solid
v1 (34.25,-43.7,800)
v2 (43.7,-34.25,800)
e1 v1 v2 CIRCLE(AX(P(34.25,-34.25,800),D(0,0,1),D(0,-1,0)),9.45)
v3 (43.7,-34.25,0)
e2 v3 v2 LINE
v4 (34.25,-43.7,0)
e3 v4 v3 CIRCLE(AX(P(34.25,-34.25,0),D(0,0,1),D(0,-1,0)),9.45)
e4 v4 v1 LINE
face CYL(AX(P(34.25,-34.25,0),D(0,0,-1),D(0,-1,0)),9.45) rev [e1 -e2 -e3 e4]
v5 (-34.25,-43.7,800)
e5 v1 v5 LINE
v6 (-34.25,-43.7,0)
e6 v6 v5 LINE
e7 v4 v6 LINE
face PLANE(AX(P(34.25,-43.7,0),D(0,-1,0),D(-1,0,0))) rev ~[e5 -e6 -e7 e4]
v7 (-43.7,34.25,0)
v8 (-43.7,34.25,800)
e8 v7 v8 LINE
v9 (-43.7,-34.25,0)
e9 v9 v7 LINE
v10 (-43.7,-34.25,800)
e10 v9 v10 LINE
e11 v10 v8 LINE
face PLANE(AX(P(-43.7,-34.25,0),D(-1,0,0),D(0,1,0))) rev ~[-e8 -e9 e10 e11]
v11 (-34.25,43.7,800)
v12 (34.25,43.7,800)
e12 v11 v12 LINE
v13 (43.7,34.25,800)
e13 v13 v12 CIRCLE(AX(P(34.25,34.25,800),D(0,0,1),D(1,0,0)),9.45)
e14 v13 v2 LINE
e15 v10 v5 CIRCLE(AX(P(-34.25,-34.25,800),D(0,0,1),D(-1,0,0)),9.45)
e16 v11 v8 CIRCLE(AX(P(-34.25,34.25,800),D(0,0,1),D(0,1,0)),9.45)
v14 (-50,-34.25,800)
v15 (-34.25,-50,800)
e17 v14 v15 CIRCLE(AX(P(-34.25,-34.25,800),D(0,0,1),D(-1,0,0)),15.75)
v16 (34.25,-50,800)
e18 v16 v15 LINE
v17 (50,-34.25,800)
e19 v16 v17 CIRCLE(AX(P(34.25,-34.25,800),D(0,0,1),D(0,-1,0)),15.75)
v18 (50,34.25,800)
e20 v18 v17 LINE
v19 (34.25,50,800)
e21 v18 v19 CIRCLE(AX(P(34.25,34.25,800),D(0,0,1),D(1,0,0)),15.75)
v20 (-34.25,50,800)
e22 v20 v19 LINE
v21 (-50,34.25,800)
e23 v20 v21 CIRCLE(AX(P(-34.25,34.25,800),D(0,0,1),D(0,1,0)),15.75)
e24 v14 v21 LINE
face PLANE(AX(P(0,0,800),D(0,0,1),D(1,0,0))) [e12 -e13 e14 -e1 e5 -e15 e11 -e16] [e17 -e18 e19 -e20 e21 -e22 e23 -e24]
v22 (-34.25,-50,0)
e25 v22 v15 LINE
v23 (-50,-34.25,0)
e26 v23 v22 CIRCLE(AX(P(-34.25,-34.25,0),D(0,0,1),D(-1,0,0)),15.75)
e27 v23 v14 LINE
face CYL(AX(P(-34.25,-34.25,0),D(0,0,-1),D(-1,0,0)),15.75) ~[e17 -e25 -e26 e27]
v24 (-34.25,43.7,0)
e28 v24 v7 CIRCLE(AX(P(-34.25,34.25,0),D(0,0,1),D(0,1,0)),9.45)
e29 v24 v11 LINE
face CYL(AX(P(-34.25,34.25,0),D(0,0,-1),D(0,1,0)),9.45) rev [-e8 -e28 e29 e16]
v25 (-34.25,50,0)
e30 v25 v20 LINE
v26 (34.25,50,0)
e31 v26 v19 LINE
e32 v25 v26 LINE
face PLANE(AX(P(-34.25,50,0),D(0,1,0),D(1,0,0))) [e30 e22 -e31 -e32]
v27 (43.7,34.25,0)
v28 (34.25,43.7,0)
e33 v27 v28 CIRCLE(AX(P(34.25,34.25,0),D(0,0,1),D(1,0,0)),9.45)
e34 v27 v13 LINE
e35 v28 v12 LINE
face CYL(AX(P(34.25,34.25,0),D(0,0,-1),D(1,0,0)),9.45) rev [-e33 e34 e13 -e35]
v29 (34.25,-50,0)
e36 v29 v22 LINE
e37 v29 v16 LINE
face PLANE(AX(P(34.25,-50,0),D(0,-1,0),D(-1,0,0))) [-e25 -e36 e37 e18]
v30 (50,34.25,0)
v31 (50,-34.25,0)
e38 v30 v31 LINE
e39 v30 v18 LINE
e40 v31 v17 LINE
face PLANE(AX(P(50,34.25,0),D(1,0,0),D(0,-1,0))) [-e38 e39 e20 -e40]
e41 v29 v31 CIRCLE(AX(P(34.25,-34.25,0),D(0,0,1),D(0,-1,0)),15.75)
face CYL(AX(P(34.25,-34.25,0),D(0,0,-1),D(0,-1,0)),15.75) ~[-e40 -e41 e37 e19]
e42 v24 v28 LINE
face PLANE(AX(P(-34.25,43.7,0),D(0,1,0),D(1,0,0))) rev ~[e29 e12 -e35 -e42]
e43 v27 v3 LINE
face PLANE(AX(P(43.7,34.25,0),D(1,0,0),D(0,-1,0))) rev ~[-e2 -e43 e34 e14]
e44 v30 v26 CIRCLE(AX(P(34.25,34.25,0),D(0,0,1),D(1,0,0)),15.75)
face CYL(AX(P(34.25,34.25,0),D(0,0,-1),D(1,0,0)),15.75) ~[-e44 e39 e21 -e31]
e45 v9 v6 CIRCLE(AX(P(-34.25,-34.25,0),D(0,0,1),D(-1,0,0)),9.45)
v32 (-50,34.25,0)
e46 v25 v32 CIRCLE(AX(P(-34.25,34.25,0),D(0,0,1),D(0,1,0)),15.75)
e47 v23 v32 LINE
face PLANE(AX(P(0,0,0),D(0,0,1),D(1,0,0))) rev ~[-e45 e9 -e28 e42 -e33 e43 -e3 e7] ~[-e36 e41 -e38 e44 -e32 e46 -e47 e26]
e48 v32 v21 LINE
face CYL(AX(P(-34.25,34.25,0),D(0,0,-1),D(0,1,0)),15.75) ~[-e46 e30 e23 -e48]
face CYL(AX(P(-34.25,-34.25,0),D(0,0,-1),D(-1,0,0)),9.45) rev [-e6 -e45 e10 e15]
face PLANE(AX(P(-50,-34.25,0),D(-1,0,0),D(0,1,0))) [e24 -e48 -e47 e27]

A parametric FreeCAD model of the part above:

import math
import FreeCAD as App
import Part
import Sketcher

V = App.Vector
Q = App.Units.Quantity

doc = App.newDocument("Part")
params = doc.addObject("Spreadsheet::Sheet", "Params")
for row, (alias, value) in enumerate([
    ("sketch1_radius", "15.75 mm"),
    ("pad1_length", "800 mm"),
], start=1):
    params.set(f"A{row}", alias)
    params.set(f"B{row}", "=" + value)
    params.setAlias(f"B{row}", alias)

body = doc.addObject("PartDesign::Body", "Body")

# Sketch on XY plane
sketch1 = body.newObject("Sketcher::SketchObject", "Sketch")
sketch1.AttachmentSupport = (doc.getObject("XY_Plane"), [""])
sketch1.MapMode = "FlatFace"
sketch1.addGeometry([
    Part.LineSegment(V(-50, 34, 0), V(-50, -34, 0)),  # 0
    Part.ArcOfCircle(Part.Circle(V(-34, -34, 0), V(0, 0, 1), 16), math.radians(180), math.radians(270)),  # 1
    Part.LineSegment(V(-34, -50, 0), V(34, -50, 0)),  # 2
    Part.ArcOfCircle(Part.Circle(V(34, -34, 0), V(0, 0, 1), 16), math.radians(-90), math.radians(0)),  # 3
    Part.LineSegment(V(50, -34, 0), V(50, 34, 0)),  # 4
    Part.ArcOfCircle(Part.Circle(V(34, 34, 0), V(0, 0, 1), 16), math.radians(0), math.radians(90)),  # 5
    Part.LineSegment(V(34, 50, 0), V(-34, 50, 0)),  # 6
    Part.ArcOfCircle(Part.Circle(V(-34, 34, 0), V(0, 0, 1), 16), math.radians(90), math.radians(180)),  # 7
    Part.ArcOfCircle(Part.Circle(V(-34, 34, 0), V(0, 0, 1), 9), math.radians(90), math.radians(180)),  # 8
    Part.LineSegment(V(-34, 44, 0), V(34, 44, 0)),  # 9
    Part.ArcOfCircle(Part.Circle(V(34, 34, 0), V(0, 0, 1), 9), math.radians(0), math.radians(90)),  # 10
    Part.LineSegment(V(44, 34, 0), V(44, -34, 0)),  # 11
    Part.ArcOfCircle(Part.Circle(V(34, -34, 0), V(0, 0, 1), 9), math.radians(-90), math.radians(0)),  # 12
    Part.LineSegment(V(34, -44, 0), V(-34, -44, 0)),  # 13
    Part.ArcOfCircle(Part.Circle(V(-34, -34, 0), V(0, 0, 1), 9), math.radians(180), math.radians(270)),  # 14
    Part.LineSegment(V(-44, -34, 0), V(-44, 34, 0)),  # 15
], False)
sketch1.addConstraint([
    Sketcher.Constraint("Tangent", 0, 2, 1, 1),
    Sketcher.Constraint("Tangent", 1, 2, 2, 1),
    Sketcher.Constraint("Tangent", 2, 2, 3, 1),
    Sketcher.Constraint("Tangent", 3, 2, 4, 1),
    Sketcher.Constraint("Tangent", 4, 2, 5, 1),
    Sketcher.Constraint("Tangent", 5, 2, 6, 1),
    Sketcher.Constraint("Tangent", 6, 2, 7, 1),
    Sketcher.Constraint("Tangent", 7, 2, 0, 1),
    Sketcher.Constraint("Tangent", 8, 1, 9, 1),
    Sketcher.Constraint("Tangent", 9, 2, 10, 2),
    Sketcher.Constraint("Tangent", 10, 1, 11, 1),
    Sketcher.Constraint("Tangent", 11, 2, 12, 2),
    Sketcher.Constraint("Tangent", 12, 1, 13, 1),
    Sketcher.Constraint("Tangent", 13, 2, 14, 2),
    Sketcher.Constraint("Tangent", 14, 1, 15, 1),
    Sketcher.Constraint("Tangent", 15, 2, 8, 2),
    Sketcher.Constraint("Vertical", 0),
    Sketcher.Constraint("Horizontal", 2),
    Sketcher.Constraint("Vertical", 4),
    Sketcher.Constraint("Horizontal", 6),
    Sketcher.Constraint("Horizontal", 9),
    Sketcher.Constraint("Vertical", 11),
    Sketcher.Constraint("Horizontal", 13),
    Sketcher.Constraint("Vertical", 15),
    Sketcher.Constraint("Coincident", 8, 3, 7, 3),
    Sketcher.Constraint("Coincident", 10, 3, 5, 3),
    Sketcher.Constraint("Coincident", 12, 3, 3, 3),
    Sketcher.Constraint("Equal", 1, 3),
    Sketcher.Constraint("Equal", 3, 5),
    Sketcher.Constraint("Equal", 5, 7),
    Sketcher.Constraint("Equal", 12, 14),
    Sketcher.Constraint("Symmetric", 1, 3, 5, 3, -1, 1),
    Sketcher.Constraint("Equal", 13, 0),
    Sketcher.Constraint("Radius", 1, Q("15.75 mm")),
    Sketcher.Constraint("DistanceX", 0, 2, -1, 1, Q("50 mm")),
    Sketcher.Constraint("DistanceY", 8, 1, 6, 2, Q("6.3 mm")),
])
sketch1.setExpression("Constraints[33]", "Params.sketch1_radius")
pad1 = body.newObject("PartDesign::Pad", "Pad")
pad1.Profile = sketch1
pad1.setExpression("Length", "Params.pad1_length")

doc.recompute()
